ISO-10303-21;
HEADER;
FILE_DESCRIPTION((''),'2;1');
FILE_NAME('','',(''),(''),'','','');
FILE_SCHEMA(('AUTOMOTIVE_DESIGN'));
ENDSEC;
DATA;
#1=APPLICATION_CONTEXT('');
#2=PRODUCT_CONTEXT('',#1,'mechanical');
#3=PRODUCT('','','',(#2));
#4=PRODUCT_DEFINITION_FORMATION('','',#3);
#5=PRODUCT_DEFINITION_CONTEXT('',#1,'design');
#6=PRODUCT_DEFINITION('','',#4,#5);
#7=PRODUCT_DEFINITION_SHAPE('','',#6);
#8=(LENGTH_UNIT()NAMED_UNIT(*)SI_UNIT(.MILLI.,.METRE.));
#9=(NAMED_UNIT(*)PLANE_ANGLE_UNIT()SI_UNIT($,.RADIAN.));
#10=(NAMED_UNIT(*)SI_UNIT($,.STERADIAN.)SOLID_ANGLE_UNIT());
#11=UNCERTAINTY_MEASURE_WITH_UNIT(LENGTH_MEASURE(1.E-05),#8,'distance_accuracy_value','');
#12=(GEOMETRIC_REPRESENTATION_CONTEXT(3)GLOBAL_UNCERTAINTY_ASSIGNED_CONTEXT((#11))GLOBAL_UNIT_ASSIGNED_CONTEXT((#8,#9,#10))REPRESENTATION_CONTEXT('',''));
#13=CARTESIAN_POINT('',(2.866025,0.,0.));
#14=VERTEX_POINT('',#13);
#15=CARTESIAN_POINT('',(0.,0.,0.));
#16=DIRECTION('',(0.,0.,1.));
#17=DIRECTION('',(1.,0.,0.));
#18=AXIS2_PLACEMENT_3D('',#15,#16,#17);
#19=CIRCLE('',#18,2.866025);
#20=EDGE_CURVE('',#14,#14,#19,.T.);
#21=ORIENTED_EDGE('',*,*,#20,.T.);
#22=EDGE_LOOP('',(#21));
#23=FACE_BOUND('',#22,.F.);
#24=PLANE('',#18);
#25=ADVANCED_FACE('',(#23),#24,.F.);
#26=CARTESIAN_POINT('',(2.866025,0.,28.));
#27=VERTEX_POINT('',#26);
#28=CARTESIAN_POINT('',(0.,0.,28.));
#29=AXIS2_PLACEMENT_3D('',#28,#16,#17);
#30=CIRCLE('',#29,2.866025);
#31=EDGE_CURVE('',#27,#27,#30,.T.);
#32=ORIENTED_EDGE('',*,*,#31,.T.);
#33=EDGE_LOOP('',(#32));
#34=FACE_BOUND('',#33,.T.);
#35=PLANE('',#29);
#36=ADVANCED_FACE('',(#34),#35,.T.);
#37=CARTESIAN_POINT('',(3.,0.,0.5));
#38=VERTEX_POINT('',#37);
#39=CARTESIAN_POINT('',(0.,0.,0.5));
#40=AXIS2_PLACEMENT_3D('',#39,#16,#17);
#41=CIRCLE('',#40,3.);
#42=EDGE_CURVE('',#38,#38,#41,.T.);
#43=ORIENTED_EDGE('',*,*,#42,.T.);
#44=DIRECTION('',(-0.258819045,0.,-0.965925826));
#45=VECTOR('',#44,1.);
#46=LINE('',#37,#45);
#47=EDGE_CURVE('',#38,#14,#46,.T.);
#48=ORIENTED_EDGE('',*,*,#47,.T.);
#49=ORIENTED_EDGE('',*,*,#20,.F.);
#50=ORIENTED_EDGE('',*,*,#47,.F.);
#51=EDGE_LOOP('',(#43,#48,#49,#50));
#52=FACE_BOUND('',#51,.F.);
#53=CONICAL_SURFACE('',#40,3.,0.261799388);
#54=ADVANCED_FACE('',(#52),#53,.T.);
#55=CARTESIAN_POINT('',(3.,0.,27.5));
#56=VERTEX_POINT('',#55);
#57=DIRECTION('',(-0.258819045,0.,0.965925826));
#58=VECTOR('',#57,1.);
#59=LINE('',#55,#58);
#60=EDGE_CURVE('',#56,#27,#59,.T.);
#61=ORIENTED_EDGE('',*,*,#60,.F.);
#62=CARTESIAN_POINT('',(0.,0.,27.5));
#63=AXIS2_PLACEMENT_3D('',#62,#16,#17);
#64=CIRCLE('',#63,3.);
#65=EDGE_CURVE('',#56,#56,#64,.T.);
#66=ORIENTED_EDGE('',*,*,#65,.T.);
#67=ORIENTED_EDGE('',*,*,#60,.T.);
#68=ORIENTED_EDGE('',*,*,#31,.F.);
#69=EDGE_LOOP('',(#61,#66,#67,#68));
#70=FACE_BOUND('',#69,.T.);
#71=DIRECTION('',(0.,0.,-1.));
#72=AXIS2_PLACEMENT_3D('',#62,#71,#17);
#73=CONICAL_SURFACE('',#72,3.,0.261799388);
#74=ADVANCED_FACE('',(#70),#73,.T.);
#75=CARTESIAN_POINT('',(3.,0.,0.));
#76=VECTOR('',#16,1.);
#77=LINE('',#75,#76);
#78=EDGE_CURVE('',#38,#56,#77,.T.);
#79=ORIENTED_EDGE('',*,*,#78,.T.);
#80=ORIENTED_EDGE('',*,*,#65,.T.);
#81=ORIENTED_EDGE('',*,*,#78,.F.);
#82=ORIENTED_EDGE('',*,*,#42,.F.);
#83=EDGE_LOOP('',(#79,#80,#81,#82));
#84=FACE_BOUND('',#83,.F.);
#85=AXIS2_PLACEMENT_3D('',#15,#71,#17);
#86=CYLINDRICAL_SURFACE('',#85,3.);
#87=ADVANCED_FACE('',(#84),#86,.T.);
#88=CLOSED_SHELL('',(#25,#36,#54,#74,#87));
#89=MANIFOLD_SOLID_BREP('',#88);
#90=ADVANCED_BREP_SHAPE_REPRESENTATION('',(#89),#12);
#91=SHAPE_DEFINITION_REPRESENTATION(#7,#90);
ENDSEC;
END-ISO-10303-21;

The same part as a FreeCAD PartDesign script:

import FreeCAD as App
import Part
import Sketcher

V = App.Vector
Q = App.Units.Quantity


def edges_at(feature, points):
    """Names of the edges that pass closest to the given points."""
    edges = feature.Shape.Edges
    near = lambda p: min(range(len(edges)), key=lambda i: edges[i].distToShape(Part.Vertex(*p))[0])
    return sorted({f"Edge{near(p) + 1}" for p in points})

doc = App.newDocument("Part")
body = doc.addObject("PartDesign::Body", "Body")

sketch1 = body.newObject("Sketcher::SketchObject", "Sketch")
sketch1.AttachmentSupport = (doc.getObject("XY_Plane"), [""])
sketch1.MapMode = "FlatFace"
sketch1.addGeometry(Part.Circle(V(0, 0, 0), V(0, 0, 1), 3), False)
sketch1.addConstraint(Sketcher.Constraint("Coincident", 0, 3, -1, 1))
sketch1.addConstraint(Sketcher.Constraint("Diameter", 0, Q("6 mm")))
pad1 = body.newObject("PartDesign::Pad", "Pad")
pad1.Profile = sketch1
pad1.Length = 28
doc.recompute()

chamfer = body.newObject("PartDesign::Chamfer", "Chamfer")
chamfer.Base = (pad1, edges_at(pad1, [(-3, 0, 0), (-3, 0, 28)]))
chamfer.ChamferType = "Distance and Angle"
chamfer.Size = 0.5
chamfer.Angle = 15

doc.recompute()
